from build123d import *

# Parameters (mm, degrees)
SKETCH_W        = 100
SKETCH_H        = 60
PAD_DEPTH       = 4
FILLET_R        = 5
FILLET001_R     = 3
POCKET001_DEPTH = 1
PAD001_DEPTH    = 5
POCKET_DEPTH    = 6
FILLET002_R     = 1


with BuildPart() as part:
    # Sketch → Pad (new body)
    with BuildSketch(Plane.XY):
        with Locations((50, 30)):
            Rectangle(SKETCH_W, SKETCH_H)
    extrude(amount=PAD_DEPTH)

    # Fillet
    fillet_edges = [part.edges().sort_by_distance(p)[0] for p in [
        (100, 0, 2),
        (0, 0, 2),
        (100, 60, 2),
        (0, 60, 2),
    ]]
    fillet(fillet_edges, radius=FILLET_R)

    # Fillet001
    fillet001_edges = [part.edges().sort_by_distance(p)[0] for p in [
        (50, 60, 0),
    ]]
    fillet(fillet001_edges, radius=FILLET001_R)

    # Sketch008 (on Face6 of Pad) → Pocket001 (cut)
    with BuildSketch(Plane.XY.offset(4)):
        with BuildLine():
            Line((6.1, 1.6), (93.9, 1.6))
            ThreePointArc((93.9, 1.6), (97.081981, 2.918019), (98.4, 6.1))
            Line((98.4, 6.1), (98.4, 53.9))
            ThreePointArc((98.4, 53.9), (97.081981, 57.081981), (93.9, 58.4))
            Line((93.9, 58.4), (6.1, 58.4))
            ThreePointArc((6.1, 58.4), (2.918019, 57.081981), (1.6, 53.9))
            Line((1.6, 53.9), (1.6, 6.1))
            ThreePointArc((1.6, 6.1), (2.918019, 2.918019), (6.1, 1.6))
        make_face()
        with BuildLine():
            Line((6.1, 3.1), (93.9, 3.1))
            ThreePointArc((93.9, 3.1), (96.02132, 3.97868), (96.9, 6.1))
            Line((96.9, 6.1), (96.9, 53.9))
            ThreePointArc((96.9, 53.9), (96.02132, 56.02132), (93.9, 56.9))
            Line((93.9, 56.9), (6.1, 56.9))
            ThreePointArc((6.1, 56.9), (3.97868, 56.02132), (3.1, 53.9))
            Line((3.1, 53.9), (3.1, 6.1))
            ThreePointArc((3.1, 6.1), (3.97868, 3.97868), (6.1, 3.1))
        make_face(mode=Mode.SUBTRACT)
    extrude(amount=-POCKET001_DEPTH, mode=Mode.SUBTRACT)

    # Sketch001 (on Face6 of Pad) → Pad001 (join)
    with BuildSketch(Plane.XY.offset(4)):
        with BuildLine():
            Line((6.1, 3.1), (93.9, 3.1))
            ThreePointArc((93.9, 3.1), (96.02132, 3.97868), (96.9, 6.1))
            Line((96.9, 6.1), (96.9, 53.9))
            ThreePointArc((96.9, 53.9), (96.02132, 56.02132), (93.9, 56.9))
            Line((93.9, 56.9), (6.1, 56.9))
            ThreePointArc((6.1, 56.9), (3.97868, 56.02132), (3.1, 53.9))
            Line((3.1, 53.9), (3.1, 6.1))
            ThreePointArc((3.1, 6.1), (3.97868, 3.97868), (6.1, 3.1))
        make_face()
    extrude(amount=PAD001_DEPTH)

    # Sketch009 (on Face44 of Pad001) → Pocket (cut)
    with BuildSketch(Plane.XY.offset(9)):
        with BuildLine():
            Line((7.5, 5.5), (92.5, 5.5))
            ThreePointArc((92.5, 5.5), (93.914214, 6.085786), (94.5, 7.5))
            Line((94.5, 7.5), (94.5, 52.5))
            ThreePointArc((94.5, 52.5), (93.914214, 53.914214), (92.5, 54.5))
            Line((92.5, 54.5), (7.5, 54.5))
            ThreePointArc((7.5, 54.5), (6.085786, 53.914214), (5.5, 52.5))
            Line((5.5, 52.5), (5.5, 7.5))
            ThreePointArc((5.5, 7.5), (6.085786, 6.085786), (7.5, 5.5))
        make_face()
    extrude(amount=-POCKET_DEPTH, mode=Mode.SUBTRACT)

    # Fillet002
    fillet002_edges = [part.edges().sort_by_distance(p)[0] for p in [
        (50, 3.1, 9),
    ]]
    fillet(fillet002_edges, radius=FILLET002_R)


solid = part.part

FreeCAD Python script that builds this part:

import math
import FreeCAD as App
import Part
import Sketcher
from FreeCAD import Vector


def edges_at(feature, points):
    """Names of the edges that pass closest to the given points."""
    edges = feature.Shape.Edges
    near = lambda p: min(range(len(edges)), key=lambda i: edges[i].distToShape(Part.Vertex(*p))[0])
    return sorted({f"Edge{near(p) + 1}" for p in points})

doc = App.newDocument("Part")
body = doc.addObject("PartDesign::Body", "Body")

# Sketch on XY plane
sketch1 = body.newObject("Sketcher::SketchObject", "Sketch")
sketch1.AttachmentSupport = (doc.getObject("XY_Plane"), [""])
sketch1.MapMode = "FlatFace"
sketch1.addGeometry(Part.LineSegment(Vector(0, 60, 0), Vector(0, 0, 0)), False)
sketch1.addGeometry(Part.LineSegment(Vector(0, 0, 0), Vector(100, 0, 0)), False)
sketch1.addGeometry(Part.LineSegment(Vector(100, 0, 0), Vector(100, 60, 0)), False)
sketch1.addGeometry(Part.LineSegment(Vector(100, 60, 0), Vector(0, 60, 0)), False)
sketch1.addConstraint(Sketcher.Constraint("Coincident", 0, 2, 1, 1))
sketch1.addConstraint(Sketcher.Constraint("Coincident", 1, 2, 2, 1))
sketch1.addConstraint(Sketcher.Constraint("Coincident", 2, 2, 3, 1))
sketch1.addConstraint(Sketcher.Constraint("Coincident", 3, 2, 0, 1))
sketch1.addConstraint(Sketcher.Constraint("Vertical", 0))
sketch1.addConstraint(Sketcher.Constraint("Horizontal", 1))
sketch1.addConstraint(Sketcher.Constraint("Vertical", 2))
sketch1.addConstraint(Sketcher.Constraint("Horizontal", 3))
sketch1.addConstraint(Sketcher.Constraint("Coincident", 0, 2, -1, 1))
sketch1.addConstraint(Sketcher.Constraint("DistanceX", 1, 1, 1, 2, 100.0))
sketch1.addConstraint(Sketcher.Constraint("DistanceY", 0, 2, 0, 1, 60.0))
pad1 = body.newObject("PartDesign::Pad", "Pad")
pad1.Profile = sketch1
pad1.Length = 4
doc.recompute()

fillet = body.newObject("PartDesign::Fillet", "Fillet")
fillet.Base = (pad1, edges_at(pad1, [
    (100, 0, 2),
    (0, 0, 2),
    (100, 60, 2),
    (0, 60, 2),
]))
fillet.Radius = 5
doc.recompute()

fillet2 = body.newObject("PartDesign::Fillet", "Fillet001")
fillet2.Base = (fillet, edges_at(fillet, [(50, 60, 0)]))
fillet2.Radius = 3

# Sketch on XY plane
sketch2 = body.newObject("Sketcher::SketchObject", "Sketch001")
sketch2.AttachmentSupport = (doc.getObject("XY_Plane"), [""])
sketch2.MapMode = "FlatFace"
sketch2.AttachmentOffset = App.Placement(Vector(0, 0, 4), App.Rotation())
sketch2.addGeometry(Part.LineSegment(Vector(6.1, 1.6, 0), Vector(93.9, 1.6, 0)), False)
sketch2.addGeometry(Part.ArcOfCircle(Part.Circle(Vector(93.9, 6.1, 0), Vector(0, 0, 1), 4.5), math.radians(-90), math.radians(0)), False)
sketch2.addGeometry(Part.LineSegment(Vector(98.4, 6.1, 0), Vector(98.4, 53.9, 0)), False)
sketch2.addGeometry(Part.ArcOfCircle(Part.Circle(Vector(93.9, 53.9, 0), Vector(0, 0, 1), 4.5), math.radians(0), math.radians(90)), False)
sketch2.addGeometry(Part.LineSegment(Vector(93.9, 58.4, 0), Vector(6.1, 58.4, 0)), False)
sketch2.addGeometry(Part.ArcOfCircle(Part.Circle(Vector(6.1, 53.9, 0), Vector(0, 0, 1), 4.5), math.radians(90), math.radians(180)), False)
sketch2.addGeometry(Part.LineSegment(Vector(1.6, 53.9, 0), Vector(1.6, 6.1, 0)), False)
sketch2.addGeometry(Part.ArcOfCircle(Part.Circle(Vector(6.1, 6.1, 0), Vector(0, 0, 1), 4.5), math.radians(180), math.radians(270)), False)
sketch2.addGeometry(Part.LineSegment(Vector(93.9, 3.1, 0), Vector(6.1, 3.1, 0)), False)
sketch2.addGeometry(Part.ArcOfCircle(Part.Circle(Vector(6.1, 6.1, 0), Vector(0, 0, 1), 3), math.radians(-180), math.radians(-90)), False)
sketch2.addGeometry(Part.LineSegment(Vector(3.1, 6.1, 0), Vector(3.1, 53.9, 0)), False)
sketch2.addGeometry(Part.ArcOfCircle(Part.Circle(Vector(6.1, 53.9, 0), Vector(0, 0, 1), 3), math.radians(90), math.radians(180)), False)
sketch2.addGeometry(Part.LineSegment(Vector(6.1, 56.9, 0), Vector(93.9, 56.9, 0)), False)
sketch2.addGeometry(Part.ArcOfCircle(Part.Circle(Vector(93.9, 53.9, 0), Vector(0, 0, 1), 3), math.radians(0), math.radians(90)), False)
sketch2.addGeometry(Part.LineSegment(Vector(96.9, 53.9, 0), Vector(96.9, 6.1, 0)), False)
sketch2.addGeometry(Part.ArcOfCircle(Part.Circle(Vector(93.9, 6.1, 0), Vector(0, 0, 1), 3), math.radians(-90), math.radians(0)), False)
sketch2.addConstraint(Sketcher.Constraint("Tangent", 0, 2, 1, 1))
sketch2.addConstraint(Sketcher.Constraint("Tangent", 1, 2, 2, 1))
sketch2.addConstraint(Sketcher.Constraint("Tangent", 2, 2, 3, 1))
sketch2.addConstraint(Sketcher.Constraint("Tangent", 3, 2, 4, 1))
sketch2.addConstraint(Sketcher.Constraint("Tangent", 4, 2, 5, 1))
sketch2.addConstraint(Sketcher.Constraint("Tangent", 5, 2, 6, 1))
sketch2.addConstraint(Sketcher.Constraint("Tangent", 6, 2, 7, 1))
sketch2.addConstraint(Sketcher.Constraint("Tangent", 7, 2, 0, 1))
sketch2.addConstraint(Sketcher.Constraint("Tangent", 8, 2, 9, 2))
sketch2.addConstraint(Sketcher.Constraint("Tangent", 9, 1, 10, 1))
sketch2.addConstraint(Sketcher.Constraint("Tangent", 10, 2, 11, 2))
sketch2.addConstraint(Sketcher.Constraint("Tangent", 11, 1, 12, 1))
sketch2.addConstraint(Sketcher.Constraint("Tangent", 12, 2, 13, 2))
sketch2.addConstraint(Sketcher.Constraint("Tangent", 13, 1, 14, 1))
sketch2.addConstraint(Sketcher.Constraint("Tangent", 14, 2, 15, 2))
sketch2.addConstraint(Sketcher.Constraint("Tangent", 15, 1, 8, 1))
sketch2.addConstraint(Sketcher.Constraint("Horizontal", 0))
sketch2.addConstraint(Sketcher.Constraint("Vertical", 2))
sketch2.addConstraint(Sketcher.Constraint("Horizontal", 4))
sketch2.addConstraint(Sketcher.Constraint("Vertical", 6))
sketch2.addConstraint(Sketcher.Constraint("Horizontal", 8))
sketch2.addConstraint(Sketcher.Constraint("Vertical", 10))
sketch2.addConstraint(Sketcher.Constraint("Horizontal", 12))
sketch2.addConstraint(Sketcher.Constraint("Vertical", 14))
sketch2.addConstraint(Sketcher.Constraint("Coincident", 9, 3, 7, 3))
sketch2.addConstraint(Sketcher.Constraint("Coincident", 11, 3, 5, 3))
sketch2.addConstraint(Sketcher.Constraint("Coincident", 13, 3, 3, 3))
sketch2.addConstraint(Sketcher.Constraint("Equal", 1, 3))
sketch2.addConstraint(Sketcher.Constraint("Equal", 3, 5))
sketch2.addConstraint(Sketcher.Constraint("Equal", 5, 7))
sketch2.addConstraint(Sketcher.Constraint("Equal", 13, 15))
sketch2.addConstraint(Sketcher.Constraint("Radius", 9, 3.000001))
sketch2.addConstraint(Sketcher.Constraint("Radius", 1, 4.499998))
sketch2.addConstraint(Sketcher.Constraint("DistanceX", 0, 1, 0, 2, 87.8))
sketch2.addConstraint(Sketcher.Constraint("DistanceY", 2, 1, 2, 2, 47.8))
sketch2.addConstraint(Sketcher.Constraint("DistanceX", -1, 1, 1, 3, 93.900002))
sketch2.addConstraint(Sketcher.Constraint("DistanceY", -1, 1, 1, 3, 6.099998))
pocket1 = body.newObject("PartDesign::Pocket", "Pocket")
pocket1.Profile = sketch2
pocket1.Length = 1

# Sketch on XY plane
sketch3 = body.newObject("Sketcher::SketchObject", "Sketch002")
sketch3.AttachmentSupport = (doc.getObject("XY_Plane"), [""])
sketch3.MapMode = "FlatFace"
sketch3.AttachmentOffset = App.Placement(Vector(0, 0, 4), App.Rotation())
sketch3.addGeometry(Part.LineSegment(Vector(6.1, 3.1, 0), Vector(93.9, 3.1, 0)), False)
sketch3.addGeometry(Part.ArcOfCircle(Part.Circle(Vector(93.9, 6.1, 0), Vector(0, 0, 1), 3), math.radians(-90), math.radians(0)), False)
sketch3.addGeometry(Part.LineSegment(Vector(96.9, 6.1, 0), Vector(96.9, 53.9, 0)), False)
sketch3.addGeometry(Part.ArcOfCircle(Part.Circle(Vector(93.9, 53.9, 0), Vector(0, 0, 1), 3), math.radians(0), math.radians(90)), False)
sketch3.addGeometry(Part.LineSegment(Vector(93.9, 56.9, 0), Vector(6.1, 56.9, 0)), False)
sketch3.addGeometry(Part.ArcOfCircle(Part.Circle(Vector(6.1, 53.9, 0), Vector(0, 0, 1), 3), math.radians(90), math.radians(180)), False)
sketch3.addGeometry(Part.LineSegment(Vector(3.1, 53.9, 0), Vector(3.1, 6.1, 0)), False)
sketch3.addGeometry(Part.ArcOfCircle(Part.Circle(Vector(6.1, 6.1, 0), Vector(0, 0, 1), 3), math.radians(-180), math.radians(-90)), False)
sketch3.addConstraint(Sketcher.Constraint("Tangent", 0, 2, 1, 1))
sketch3.addConstraint(Sketcher.Constraint("Tangent", 1, 2, 2, 1))
sketch3.addConstraint(Sketcher.Constraint("Tangent", 2, 2, 3, 1))
sketch3.addConstraint(Sketcher.Constraint("Tangent", 3, 2, 4, 1))
sketch3.addConstraint(Sketcher.Constraint("Tangent", 4, 2, 5, 1))
sketch3.addConstraint(Sketcher.Constraint("Tangent", 5, 2, 6, 1))
sketch3.addConstraint(Sketcher.Constraint("Tangent", 6, 2, 7, 1))
sketch3.addConstraint(Sketcher.Constraint("Tangent", 7, 2, 0, 1))
sketch3.addConstraint(Sketcher.Constraint("Horizontal", 0))
sketch3.addConstraint(Sketcher.Constraint("Vertical", 2))
sketch3.addConstraint(Sketcher.Constraint("Horizontal", 4))
sketch3.addConstraint(Sketcher.Constraint("Vertical", 6))
sketch3.addConstraint(Sketcher.Constraint("Equal", 1, 3))
sketch3.addConstraint(Sketcher.Constraint("Equal", 3, 5))
sketch3.addConstraint(Sketcher.Constraint("Equal", 5, 7))
sketch3.addConstraint(Sketcher.Constraint("Radius", 1, 3.000001))
sketch3.addConstraint(Sketcher.Constraint("DistanceX", 0, 1, 0, 2, 87.8))
sketch3.addConstraint(Sketcher.Constraint("DistanceY", 2, 1, 2, 2, 47.8))
sketch3.addConstraint(Sketcher.Constraint("DistanceX", -1, 1, 1, 3, 93.899999))
sketch3.addConstraint(Sketcher.Constraint("DistanceY", -1, 1, 1, 3, 6.100001))
pad2 = body.newObject("PartDesign::Pad", "Pad001")
pad2.Profile = sketch3
pad2.Length = 5

# Sketch on XY plane
sketch4 = body.newObject("Sketcher::SketchObject", "Sketch003")
sketch4.AttachmentSupport = (doc.getObject("XY_Plane"), [""])
sketch4.MapMode = "FlatFace"
sketch4.AttachmentOffset = App.Placement(Vector(0, 0, 9), App.Rotation())
sketch4.addGeometry(Part.LineSegment(Vector(7.5, 5.5, 0), Vector(92.5, 5.5, 0)), False)
sketch4.addGeometry(Part.ArcOfCircle(Part.Circle(Vector(92.5, 7.5, 0), Vector(0, 0, 1), 2), math.radians(-90), math.radians(0)), False)
sketch4.addGeometry(Part.LineSegment(Vector(94.5, 7.5, 0), Vector(94.5, 52.5, 0)), False)
sketch4.addGeometry(Part.ArcOfCircle(Part.Circle(Vector(92.5, 52.5, 0), Vector(0, 0, 1), 2), math.radians(0), math.radians(90)), False)
sketch4.addGeometry(Part.LineSegment(Vector(92.5, 54.5, 0), Vector(7.5, 54.5, 0)), False)
sketch4.addGeometry(Part.ArcOfCircle(Part.Circle(Vector(7.5, 52.5, 0), Vector(0, 0, 1), 2), math.radians(90), math.radians(180)), False)
sketch4.addGeometry(Part.LineSegment(Vector(5.5, 52.5, 0), Vector(5.5, 7.5, 0)), False)
sketch4.addGeometry(Part.ArcOfCircle(Part.Circle(Vector(7.5, 7.5, 0), Vector(0, 0, 1), 2), math.radians(180), math.radians(270)), False)
sketch4.addConstraint(Sketcher.Constraint("Tangent", 0, 2, 1, 1))
sketch4.addConstraint(Sketcher.Constraint("Tangent", 1, 2, 2, 1))
sketch4.addConstraint(Sketcher.Constraint("Tangent", 2, 2, 3, 1))
sketch4.addConstraint(Sketcher.Constraint("Tangent", 3, 2, 4, 1))
sketch4.addConstraint(Sketcher.Constraint("Tangent", 4, 2, 5, 1))
sketch4.addConstraint(Sketcher.Constraint("Tangent", 5, 2, 6, 1))
sketch4.addConstraint(Sketcher.Constraint("Tangent", 6, 2, 7, 1))
sketch4.addConstraint(Sketcher.Constraint("Tangent", 7, 2, 0, 1))
sketch4.addConstraint(Sketcher.Constraint("Horizontal", 0))
sketch4.addConstraint(Sketcher.Constraint("Vertical", 2))
sketch4.addConstraint(Sketcher.Constraint("Horizontal", 4))
sketch4.addConstraint(Sketcher.Constraint("Vertical", 6))
sketch4.addConstraint(Sketcher.Constraint("Equal", 1, 3))
sketch4.addConstraint(Sketcher.Constraint("Equal", 3, 5))
sketch4.addConstraint(Sketcher.Constraint("Equal", 5, 7))
sketch4.addConstraint(Sketcher.Constraint("Radius", 1, 1.999999))
sketch4.addConstraint(Sketcher.Constraint("DistanceX", 0, 1, 0, 2, 85.0))
sketch4.addConstraint(Sketcher.Constraint("DistanceY", 2, 1, 2, 2, 45.0))
sketch4.addConstraint(Sketcher.Constraint("DistanceX", -1, 1, 1, 3, 92.500001))
sketch4.addConstraint(Sketcher.Constraint("DistanceY", -1, 1, 1, 3, 7.499999))
pocket2 = body.newObject("PartDesign::Pocket", "Pocket001")
pocket2.Profile = sketch4
pocket2.Length = 6
doc.recompute()

fillet3 = body.newObject("PartDesign::Fillet", "Fillet002")
fillet3.Base = (pocket2, edges_at(pocket2, [(50, 3.1, 9)]))
fillet3.Radius = 1

doc.recompute()
